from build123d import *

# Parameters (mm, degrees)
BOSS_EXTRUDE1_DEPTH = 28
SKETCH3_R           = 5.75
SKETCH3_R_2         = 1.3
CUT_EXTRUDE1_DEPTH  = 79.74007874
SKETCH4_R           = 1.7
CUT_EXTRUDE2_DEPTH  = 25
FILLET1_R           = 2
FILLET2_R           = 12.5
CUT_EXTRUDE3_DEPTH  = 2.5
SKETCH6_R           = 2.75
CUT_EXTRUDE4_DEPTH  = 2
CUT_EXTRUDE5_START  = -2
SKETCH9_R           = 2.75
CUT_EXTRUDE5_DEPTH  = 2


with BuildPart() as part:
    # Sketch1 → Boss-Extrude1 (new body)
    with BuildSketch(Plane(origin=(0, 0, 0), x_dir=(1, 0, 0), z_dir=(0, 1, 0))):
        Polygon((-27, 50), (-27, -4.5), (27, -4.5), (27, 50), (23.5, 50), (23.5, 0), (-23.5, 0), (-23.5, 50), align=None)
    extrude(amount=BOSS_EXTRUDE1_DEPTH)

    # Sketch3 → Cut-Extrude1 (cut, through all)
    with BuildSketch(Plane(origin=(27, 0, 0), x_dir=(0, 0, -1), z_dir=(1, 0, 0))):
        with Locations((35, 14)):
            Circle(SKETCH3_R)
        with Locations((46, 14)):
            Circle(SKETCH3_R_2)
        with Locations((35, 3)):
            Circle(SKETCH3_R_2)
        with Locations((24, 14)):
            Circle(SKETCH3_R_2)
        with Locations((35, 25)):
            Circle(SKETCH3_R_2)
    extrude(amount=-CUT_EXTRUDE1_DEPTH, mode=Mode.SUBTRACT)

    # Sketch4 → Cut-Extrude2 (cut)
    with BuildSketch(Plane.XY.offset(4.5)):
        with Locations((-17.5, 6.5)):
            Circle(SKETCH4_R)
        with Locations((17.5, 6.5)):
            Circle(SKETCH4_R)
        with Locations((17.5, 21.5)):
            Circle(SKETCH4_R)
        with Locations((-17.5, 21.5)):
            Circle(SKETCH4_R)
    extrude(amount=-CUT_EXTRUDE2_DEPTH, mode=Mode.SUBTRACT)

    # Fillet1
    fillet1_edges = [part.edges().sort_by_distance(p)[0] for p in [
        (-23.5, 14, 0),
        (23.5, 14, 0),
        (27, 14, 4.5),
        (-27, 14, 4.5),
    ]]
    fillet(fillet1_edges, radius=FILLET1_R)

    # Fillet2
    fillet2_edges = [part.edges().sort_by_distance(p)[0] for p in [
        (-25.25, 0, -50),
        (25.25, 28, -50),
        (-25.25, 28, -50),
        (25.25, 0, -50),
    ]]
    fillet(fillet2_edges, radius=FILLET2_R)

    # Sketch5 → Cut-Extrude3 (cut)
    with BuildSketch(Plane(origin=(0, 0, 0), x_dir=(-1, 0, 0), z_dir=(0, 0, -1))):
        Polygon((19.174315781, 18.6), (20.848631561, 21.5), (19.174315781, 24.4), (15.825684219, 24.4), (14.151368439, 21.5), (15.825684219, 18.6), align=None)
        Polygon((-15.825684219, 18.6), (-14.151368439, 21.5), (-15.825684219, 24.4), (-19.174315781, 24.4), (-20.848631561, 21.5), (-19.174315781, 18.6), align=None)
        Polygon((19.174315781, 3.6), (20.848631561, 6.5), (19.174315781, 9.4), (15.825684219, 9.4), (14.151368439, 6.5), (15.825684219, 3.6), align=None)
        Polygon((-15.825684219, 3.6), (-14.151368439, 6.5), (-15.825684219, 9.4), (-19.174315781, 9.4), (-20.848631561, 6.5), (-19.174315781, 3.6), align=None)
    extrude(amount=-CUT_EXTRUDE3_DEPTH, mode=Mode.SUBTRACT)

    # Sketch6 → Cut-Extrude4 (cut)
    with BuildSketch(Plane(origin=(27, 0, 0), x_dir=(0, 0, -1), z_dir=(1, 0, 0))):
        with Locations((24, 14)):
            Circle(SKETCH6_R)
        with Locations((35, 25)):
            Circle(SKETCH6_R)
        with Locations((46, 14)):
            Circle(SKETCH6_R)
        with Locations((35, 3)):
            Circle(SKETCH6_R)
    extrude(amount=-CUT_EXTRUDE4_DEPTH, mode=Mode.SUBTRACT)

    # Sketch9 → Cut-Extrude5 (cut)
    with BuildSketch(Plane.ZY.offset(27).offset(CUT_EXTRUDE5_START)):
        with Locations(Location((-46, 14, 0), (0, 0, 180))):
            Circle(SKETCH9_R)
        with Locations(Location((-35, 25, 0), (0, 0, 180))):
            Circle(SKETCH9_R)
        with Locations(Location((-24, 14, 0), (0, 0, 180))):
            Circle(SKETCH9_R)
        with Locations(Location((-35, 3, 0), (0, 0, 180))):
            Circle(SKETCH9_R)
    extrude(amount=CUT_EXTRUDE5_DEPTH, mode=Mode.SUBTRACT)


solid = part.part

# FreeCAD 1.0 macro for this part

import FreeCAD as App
import Part
import Sketcher

V = App.Vector
Q = App.Units.Quantity


def edges_at(feature, points):
    """Names of the edges that pass closest to the given points."""
    edges = feature.Shape.Edges
    near = lambda p: min(range(len(edges)), key=lambda i: edges[i].distToShape(Part.Vertex(*p))[0])
    return sorted({f"Edge{near(p) + 1}" for p in points})


def add_polygon(sketch, points):
    """Adds a closed chain of lines whose ends are joined by coincident constraints."""
    first, n = sketch.GeometryCount, len(points)
    for a, b in zip(points, points[1:] + points[:1]):
        sketch.addGeometry(Part.LineSegment(App.Vector(*a, 0), App.Vector(*b, 0)), False)
    for i in range(n):
        sketch.addConstraint(Sketcher.Constraint("Coincident", first + i, 2, first + (i + 1) % n, 1))

doc = App.newDocument("Part")
body = doc.addObject("PartDesign::Body", "Body")

# Sketch on XZ plane
sketch1 = doc.addObject("Sketcher::SketchObject", "Sketch")
body.addObject(sketch1)
sketch1.AttachmentSupport = (doc.XZ_Plane, [""])
sketch1.MapMode = "FlatFace"
add_polygon(sketch1, [(-27, -50), (-27, 4.5), (27, 4.5), (27, -50), (23.5, -50), (23.5, 0), (-23.5, 0), (-23.5, -50)])  # lines 0-7
sketch1.addConstraint(Sketcher.Constraint("Vertical", 0))
sketch1.addConstraint(Sketcher.Constraint("Horizontal", 1))
sketch1.addConstraint(Sketcher.Constraint("Vertical", 2))
sketch1.addConstraint(Sketcher.Constraint("Horizontal", 3))
sketch1.addConstraint(Sketcher.Constraint("Vertical", 4))
sketch1.addConstraint(Sketcher.Constraint("Horizontal", 5))
sketch1.addConstraint(Sketcher.Constraint("Vertical", 6))
sketch1.addConstraint(Sketcher.Constraint("Horizontal", 7))
sketch1.addConstraint(Sketcher.Constraint("Symmetric", 4, 2, 5, 2, -1, 1))
sketch1.addConstraint(Sketcher.Constraint("Symmetric", 2, 2, 7, 2, -2))
sketch1.addConstraint(Sketcher.Constraint("DistanceX", 1, 1, 1, 2, Q("54 mm")))
sketch1.addConstraint(Sketcher.Constraint("DistanceX", 5, 2, 5, 1, Q("47 mm")))
sketch1.addConstraint(Sketcher.Constraint("DistanceY", 4, 1, 4, 2, Q("50 mm")))
sketch1.addConstraint(Sketcher.Constraint("DistanceY", 0, 1, 0, 2, Q("54.5 mm")))
pad1 = doc.addObject("PartDesign::Pad", "Pad")
body.addObject(pad1)
pad1.Profile = sketch1
pad1.Length = 28
pad1.Reversed = True

# Sketch on YZ plane
sketch2 = doc.addObject("Sketcher::SketchObject", "Sketch001")
body.addObject(sketch2)
sketch2.AttachmentSupport = (doc.YZ_Plane, [""])
sketch2.MapMode = "FlatFace"
sketch2.AttachmentOffset = App.Placement(V(0, 0, 27), App.Rotation())
sketch2.addGeometry(Part.Circle(V(14, -35, 0), V(0, 0, 1), 5.8), False)
sketch2.addGeometry(Part.Circle(V(14, -46, 0), V(0, 0, 1), 1.3), False)
sketch2.addGeometry(Part.Circle(V(3, -35, 0), V(0, 0, 1), 1.3), False)
sketch2.addGeometry(Part.Circle(V(14, -24, 0), V(0, 0, 1), 1.3), False)
sketch2.addGeometry(Part.Circle(V(25, -35, 0), V(0, 0, 1), 1.3), False)
sketch2.addConstraint(Sketcher.Constraint("Equal", 1, 2))
sketch2.addConstraint(Sketcher.Constraint("Equal", 2, 3))
sketch2.addConstraint(Sketcher.Constraint("Equal", 3, 4))
sketch2.addConstraint(Sketcher.Constraint("Horizontal", 0, 3, 2, 3))
sketch2.addConstraint(Sketcher.Constraint("Horizontal", 2, 3, 4, 3))
sketch2.addConstraint(Sketcher.Constraint("Vertical", 0, 3, 1, 3))
sketch2.addConstraint(Sketcher.Constraint("Vertical", 1, 3, 3, 3))
sketch2.addConstraint(Sketcher.Constraint("Diameter", 0, Q("11.5 mm")))
sketch2.addConstraint(Sketcher.Constraint("Diameter", 1, Q("2.6 mm")))
sketch2.addConstraint(Sketcher.Constraint("DistanceX", -1, 1, 0, 3, Q("14 mm")))
sketch2.addConstraint(Sketcher.Constraint("DistanceY", 0, 3, -1, 1, Q("35 mm")))
sketch2.addConstraint(Sketcher.Constraint("DistanceY", 1, 3, -1, 1, Q("46 mm")))
sketch2.addConstraint(Sketcher.Constraint("DistanceX", -1, 1, 2, 3, Q("3 mm")))
sketch2.addConstraint(Sketcher.Constraint("DistanceY", 3, 3, -1, 1, Q("24 mm")))
sketch2.addConstraint(Sketcher.Constraint("DistanceX", -1, 1, 4, 3, Q("25 mm")))
pocket1 = doc.addObject("PartDesign::Pocket", "Pocket")
body.addObject(pocket1)
pocket1.Profile = sketch2
pocket1.Type = "ThroughAll"

# Sketch on XY plane
sketch3 = doc.addObject("Sketcher::SketchObject", "Sketch002")
body.addObject(sketch3)
sketch3.AttachmentSupport = (doc.XY_Plane, [""])
sketch3.MapMode = "FlatFace"
sketch3.AttachmentOffset = App.Placement(V(0, 0, 4.5), App.Rotation())
sketch3.addGeometry(Part.Circle(V(-17.5, 6.5, 0), V(0, 0, 1), 1.7), False)
sketch3.addGeometry(Part.Circle(V(17.5, 6.5, 0), V(0, 0, 1), 1.7), False)
sketch3.addGeometry(Part.Circle(V(17.5, 21.5, 0), V(0, 0, 1), 1.7), False)
sketch3.addGeometry(Part.Circle(V(-17.5, 21.5, 0), V(0, 0, 1), 1.7), False)
sketch3.addConstraint(Sketcher.Constraint("Equal", 0, 1))
sketch3.addConstraint(Sketcher.Constraint("Equal", 1, 2))
sketch3.addConstraint(Sketcher.Constraint("Equal", 2, 3))
sketch3.addConstraint(Sketcher.Constraint("Symmetric", 0, 3, 1, 3, -2))
sketch3.addConstraint(Sketcher.Constraint("Symmetric", 2, 3, 3, 3, -2))
sketch3.addConstraint(Sketcher.Constraint("Vertical", 1, 3, 2, 3))
sketch3.addConstraint(Sketcher.Constraint("Diameter", 0, Q("3.4 mm")))
sketch3.addConstraint(Sketcher.Constraint("DistanceX", 0, 3, 1, 3, Q("35 mm")))
sketch3.addConstraint(Sketcher.Constraint("DistanceY", 1, 3, 2, 3, Q("15 mm")))
sketch3.addConstraint(Sketcher.Constraint("DistanceY", -1, 1, 0, 3, Q("6.5 mm")))
pocket2 = doc.addObject("PartDesign::Pocket", "Pocket001")
body.addObject(pocket2)
pocket2.Profile = sketch3
pocket2.Length = 25
doc.recompute()

fillet = doc.addObject("PartDesign::Fillet", "Fillet")
body.addObject(fillet)
fillet.Base = (pocket2, edges_at(pocket2, [
    (-23.5, 14, 0),
    (23.5, 14, 0),
    (27, 14, 4.5),
    (-27, 14, 4.5),
]))
fillet.Radius = 2
doc.recompute()

fillet2 = doc.addObject("PartDesign::Fillet", "Fillet001")
body.addObject(fillet2)
fillet2.Base = (fillet, edges_at(fillet, [
    (-25.25, 0, -50),
    (25.25, 28, -50),
    (-25.25, 28, -50),
    (25.25, 0, -50),
]))
fillet2.Radius = 12.5

# Sketch on XY plane
sketch4 = doc.addObject("Sketcher::SketchObject", "Sketch003")
body.addObject(sketch4)
sketch4.AttachmentSupport = (doc.XY_Plane, [""])
sketch4.MapMode = "FlatFace"
add_polygon(sketch4, [(-19.2, 18.6), (-20.8, 21.5), (-19.2, 24.4), (-15.8, 24.4), (-14.2, 21.5), (-15.8, 18.6)])  # lines 0-5
add_polygon(sketch4, [(15.8, 18.6), (14.2, 21.5), (15.8, 24.4), (19.2, 24.4), (20.8, 21.5), (19.2, 18.6)])  # lines 6-11
add_polygon(sketch4, [(-19.2, 3.6), (-20.8, 6.5), (-19.2, 9.4), (-15.8, 9.4), (-14.2, 6.5), (-15.8, 3.6)])  # lines 12-17
add_polygon(sketch4, [(15.8, 3.6), (14.2, 6.5), (15.8, 9.4), (19.2, 9.4), (20.8, 6.5), (19.2, 3.6)])  # lines 18-23
sketch4.addConstraint(Sketcher.Constraint("Horizontal", 2))
sketch4.addConstraint(Sketcher.Constraint("Horizontal", 5))
sketch4.addConstraint(Sketcher.Constraint("Horizontal", 8))
sketch4.addConstraint(Sketcher.Constraint("Horizontal", 11))
sketch4.addConstraint(Sketcher.Constraint("Horizontal", 14))
sketch4.addConstraint(Sketcher.Constraint("Horizontal", 17))
sketch4.addConstraint(Sketcher.Constraint("Horizontal", 20))
sketch4.addConstraint(Sketcher.Constraint("Horizontal", 23))
sketch4.addConstraint(Sketcher.Constraint("Symmetric", 3, 2, 6, 2, -2))
sketch4.addConstraint(Sketcher.Constraint("Symmetric", 2, 2, 7, 2, -2))
sketch4.addConstraint(Sketcher.Constraint("Symmetric", 0, 2, 9, 2, -2))
sketch4.addConstraint(Sketcher.Constraint("Symmetric", 5, 2, 10, 2, -2))
sketch4.addConstraint(Sketcher.Constraint("Symmetric", 15, 2, 18, 2, -2))
sketch4.addConstraint(Sketcher.Constraint("Symmetric", 14, 2, 19, 2, -2))
sketch4.addConstraint(Sketcher.Constraint("Symmetric", 12, 2, 21, 2, -2))
sketch4.addConstraint(Sketcher.Constraint("Symmetric", 17, 2, 22, 2, -2))
sketch4.addConstraint(Sketcher.Constraint("Parallel", 0, 3))
sketch4.addConstraint(Sketcher.Constraint("Parallel", 1, 4))
sketch4.addConstraint(Sketcher.Constraint("Parallel", 3, 6))
sketch4.addConstraint(Sketcher.Constraint("Parallel", 4, 7))
sketch4.addConstraint(Sketcher.Constraint("Parallel", 6, 9))
sketch4.addConstraint(Sketcher.Constraint("Parallel", 9, 12))
sketch4.addConstraint(Sketcher.Constraint("Parallel", 10, 13))
sketch4.addConstraint(Sketcher.Constraint("Parallel", 12, 15))
sketch4.addConstraint(Sketcher.Constraint("Parallel", 13, 16))
sketch4.addConstraint(Sketcher.Constraint("Parallel", 15, 18))
sketch4.addConstraint(Sketcher.Constraint("Parallel", 18, 21))
sketch4.addConstraint(Sketcher.Constraint("Horizontal", 0, 2, 3, 2))
sketch4.addConstraint(Sketcher.Constraint("Horizontal", 12, 2, 15, 2))
sketch4.addConstraint(Sketcher.Constraint("Vertical", 2, 2, 4, 2))
sketch4.addConstraint(Sketcher.Constraint("Vertical", 0, 2, 12, 2))
sketch4.addConstraint(Sketcher.Constraint("Vertical", 5, 2, 13, 2))
sketch4.addConstraint(Sketcher.Constraint("Vertical", 4, 2, 14, 2))
sketch4.addConstraint(Sketcher.Constraint("Vertical", 14, 2, 16, 2))
sketch4.addConstraint(Sketcher.Constraint("Angle", 0, Q("120 deg")))
sketch4.addConstraint(Sketcher.Constraint("DistanceX", 1, 2, 7, 2, Q("35 mm")))
sketch4.addConstraint(Sketcher.Constraint("DistanceY", 12, 2, 0, 2, Q("15 mm")))
sketch4.addConstraint(Sketcher.Constraint("DistanceY", -1, 1, 0, 2, Q("21.5 mm")))
sketch4.addConstraint(Sketcher.Constraint("DistanceY", -1, 1, 1, 2, Q("24.4 mm")))
sketch4.addConstraint(Sketcher.Constraint("DistanceX", 2, 1, 2, 2, Q("3.348632 mm")))
pocket3 = doc.addObject("PartDesign::Pocket", "Pocket002")
body.addObject(pocket3)
pocket3.Profile = sketch4
pocket3.Length = 2.5
pocket3.Reversed = True

# Sketch on YZ plane
sketch5 = doc.addObject("Sketcher::SketchObject", "Sketch004")
body.addObject(sketch5)
sketch5.AttachmentSupport = (doc.YZ_Plane, [""])
sketch5.MapMode = "FlatFace"
sketch5.AttachmentOffset = App.Placement(V(0, 0, 27), App.Rotation())
sketch5.addGeometry(Part.Circle(V(14, -24, 0), V(0, 0, 1), 2.8), False)
sketch5.addGeometry(Part.Circle(V(25, -35, 0), V(0, 0, 1), 2.8), False)
sketch5.addGeometry(Part.Circle(V(14, -46, 0), V(0, 0, 1), 2.8), False)
sketch5.addGeometry(Part.Circle(V(3, -35, 0), V(0, 0, 1), 2.8), False)
sketch5.addConstraint(Sketcher.Constraint("Equal", 0, 1))
sketch5.addConstraint(Sketcher.Constraint("Equal", 1, 2))
sketch5.addConstraint(Sketcher.Constraint("Equal", 2, 3))
sketch5.addConstraint(Sketcher.Constraint("Horizontal", 1, 3, 3, 3))
sketch5.addConstraint(Sketcher.Constraint("Vertical", 0, 3, 2, 3))
sketch5.addConstraint(Sketcher.Constraint("Diameter", 0, Q("5.5 mm")))
sketch5.addConstraint(Sketcher.Constraint("DistanceX", -1, 1, 0, 3, Q("14 mm")))
sketch5.addConstraint(Sketcher.Constraint("DistanceY", 0, 3, -1, 1, Q("24 mm")))
sketch5.addConstraint(Sketcher.Constraint("DistanceX", -1, 1, 1, 3, Q("25 mm")))
sketch5.addConstraint(Sketcher.Constraint("DistanceY", 1, 3, -1, 1, Q("35 mm")))
sketch5.addConstraint(Sketcher.Constraint("DistanceY", 2, 3, -1, 1, Q("46 mm")))
sketch5.addConstraint(Sketcher.Constraint("DistanceX", -1, 1, 3, 3, Q("3 mm")))
pocket4 = doc.addObject("PartDesign::Pocket", "Pocket003")
body.addObject(pocket4)
pocket4.Profile = sketch5
pocket4.Length = 2

# Sketch on YZ plane
sketch6 = doc.addObject("Sketcher::SketchObject", "Sketch005")
body.addObject(sketch6)
sketch6.AttachmentSupport = (doc.YZ_Plane, [""])
sketch6.MapMode = "FlatFace"
sketch6.AttachmentOffset = App.Placement(V(0, 0, -25), App.Rotation())
sketch6.addGeometry(Part.Circle(V(14, -46, 0), V(0, 0, 1), 2.8), False)
sketch6.addGeometry(Part.Circle(V(25, -35, 0), V(0, 0, 1), 2.8), False)
sketch6.addGeometry(Part.Circle(V(14, -24, 0), V(0, 0, 1), 2.8), False)
sketch6.addGeometry(Part.Circle(V(3, -35, 0), V(0, 0, 1), 2.8), False)
sketch6.addConstraint(Sketcher.Constraint("Equal", 0, 1))
sketch6.addConstraint(Sketcher.Constraint("Equal", 1, 2))
sketch6.addConstraint(Sketcher.Constraint("Equal", 2, 3))
sketch6.addConstraint(Sketcher.Constraint("Horizontal", 1, 3, 3, 3))
sketch6.addConstraint(Sketcher.Constraint("Vertical", 0, 3, 2, 3))
sketch6.addConstraint(Sketcher.Constraint("Diameter", 0, Q("5.5 mm")))
sketch6.addConstraint(Sketcher.Constraint("DistanceX", -1, 1, 0, 3, Q("14 mm")))
sketch6.addConstraint(Sketcher.Constraint("DistanceY", 0, 3, -1, 1, Q("46 mm")))
sketch6.addConstraint(Sketcher.Constraint("DistanceX", -1, 1, 1, 3, Q("25 mm")))
sketch6.addConstraint(Sketcher.Constraint("DistanceY", 1, 3, -1, 1, Q("35 mm")))
sketch6.addConstraint(Sketcher.Constraint("DistanceY", 2, 3, -1, 1, Q("24 mm")))
sketch6.addConstraint(Sketcher.Constraint("DistanceX", -1, 1, 3, 3, Q("3 mm")))
pocket5 = doc.addObject("PartDesign::Pocket", "Pocket004")
body.addObject(pocket5)
pocket5.Profile = sketch6
pocket5.Length = 2

doc.recompute()
